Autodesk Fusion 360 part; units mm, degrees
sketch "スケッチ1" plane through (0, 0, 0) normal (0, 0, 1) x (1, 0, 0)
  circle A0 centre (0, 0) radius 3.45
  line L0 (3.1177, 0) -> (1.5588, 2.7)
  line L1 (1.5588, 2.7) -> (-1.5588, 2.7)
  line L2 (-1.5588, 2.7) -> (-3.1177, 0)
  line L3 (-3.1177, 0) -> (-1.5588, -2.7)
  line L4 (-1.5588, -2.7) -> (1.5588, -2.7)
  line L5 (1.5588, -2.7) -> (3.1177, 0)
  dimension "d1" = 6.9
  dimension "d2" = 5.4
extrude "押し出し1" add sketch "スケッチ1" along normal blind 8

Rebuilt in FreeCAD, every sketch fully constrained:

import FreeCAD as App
import Part
import Sketcher
from FreeCAD import Vector
Q = App.Units.Quantity


def add_polygon(sketch, points):
    """Adds a closed chain of lines whose ends are joined by coincident constraints."""
    first, n = sketch.GeometryCount, len(points)
    for a, b in zip(points, points[1:] + points[:1]):
        sketch.addGeometry(Part.LineSegment(App.Vector(*a, 0), App.Vector(*b, 0)), False)
    for i in range(n):
        sketch.addConstraint(Sketcher.Constraint("Coincident", first + i, 2, first + (i + 1) % n, 1))

doc = App.newDocument("Part")
params = doc.addObject("Spreadsheet::Sheet", "Params")
for row, (alias, value) in enumerate([
    ("sketch1_diameter", "6.9 mm"),
    ("pad1_length", "8 mm"),
], start=1):
    params.set(f"A{row}", alias)
    params.set(f"B{row}", "=" + value)
    params.setAlias(f"B{row}", alias)

body = doc.addObject("PartDesign::Body", "Body")

sketch1 = body.newObject("Sketcher::SketchObject", "Sketch")
sketch1.AttachmentSupport = (doc.getObject("XY_Plane"), [""])
sketch1.MapMode = "FlatFace"
sketch1.addGeometry(Part.Circle(Vector(0, 0, 0), Vector(0, 0, 1), 3.5), False)
add_polygon(sketch1, [(1.6, 2.7), (3.1, 0), (1.6, -2.7), (-1.6, -2.7), (-3.1, 0), (-1.6, 2.7)])
sketch1.addConstraint(Sketcher.Constraint("Horizontal", 3))
sketch1.addConstraint(Sketcher.Constraint("Horizontal", 6))
sketch1.addConstraint(Sketcher.Constraint("Coincident", 0, 3, -1, 1))
sketch1.addConstraint(Sketcher.Constraint("Symmetric", 1, 2, 4, 2, -1, 1))
sketch1.addConstraint(Sketcher.Constraint("Symmetric", 2, 2, 5, 2, -1, 1))
sketch1.addConstraint(Sketcher.Constraint("PointOnObject", 1, 2, -1))
sketch1.addConstraint(Sketcher.Constraint("Parallel", 1, 4))
sketch1.addConstraint(Sketcher.Constraint("Vertical", 3, 2, 5, 2))
sketch1.addConstraint(Sketcher.Constraint("Diameter", 0, Q("6.9 mm")))
sketch1.addConstraint(Sketcher.Constraint("DistanceY", 3, 2, 5, 2, Q("5.4 mm")))
sketch1.addConstraint(Sketcher.Constraint("Angle", 1, Q("-59.9991 deg")))
sketch1.addConstraint(Sketcher.Constraint("DistanceX", 3, 2, 3, 1, Q("3.1176 mm")))
sketch1.setExpression("Constraints[14]", "Params.sketch1_diameter")
pad1 = body.newObject("PartDesign::Pad", "Pad")
pad1.Profile = sketch1
pad1.setExpression("Length", "Params.pad1_length")

doc.recompute()
